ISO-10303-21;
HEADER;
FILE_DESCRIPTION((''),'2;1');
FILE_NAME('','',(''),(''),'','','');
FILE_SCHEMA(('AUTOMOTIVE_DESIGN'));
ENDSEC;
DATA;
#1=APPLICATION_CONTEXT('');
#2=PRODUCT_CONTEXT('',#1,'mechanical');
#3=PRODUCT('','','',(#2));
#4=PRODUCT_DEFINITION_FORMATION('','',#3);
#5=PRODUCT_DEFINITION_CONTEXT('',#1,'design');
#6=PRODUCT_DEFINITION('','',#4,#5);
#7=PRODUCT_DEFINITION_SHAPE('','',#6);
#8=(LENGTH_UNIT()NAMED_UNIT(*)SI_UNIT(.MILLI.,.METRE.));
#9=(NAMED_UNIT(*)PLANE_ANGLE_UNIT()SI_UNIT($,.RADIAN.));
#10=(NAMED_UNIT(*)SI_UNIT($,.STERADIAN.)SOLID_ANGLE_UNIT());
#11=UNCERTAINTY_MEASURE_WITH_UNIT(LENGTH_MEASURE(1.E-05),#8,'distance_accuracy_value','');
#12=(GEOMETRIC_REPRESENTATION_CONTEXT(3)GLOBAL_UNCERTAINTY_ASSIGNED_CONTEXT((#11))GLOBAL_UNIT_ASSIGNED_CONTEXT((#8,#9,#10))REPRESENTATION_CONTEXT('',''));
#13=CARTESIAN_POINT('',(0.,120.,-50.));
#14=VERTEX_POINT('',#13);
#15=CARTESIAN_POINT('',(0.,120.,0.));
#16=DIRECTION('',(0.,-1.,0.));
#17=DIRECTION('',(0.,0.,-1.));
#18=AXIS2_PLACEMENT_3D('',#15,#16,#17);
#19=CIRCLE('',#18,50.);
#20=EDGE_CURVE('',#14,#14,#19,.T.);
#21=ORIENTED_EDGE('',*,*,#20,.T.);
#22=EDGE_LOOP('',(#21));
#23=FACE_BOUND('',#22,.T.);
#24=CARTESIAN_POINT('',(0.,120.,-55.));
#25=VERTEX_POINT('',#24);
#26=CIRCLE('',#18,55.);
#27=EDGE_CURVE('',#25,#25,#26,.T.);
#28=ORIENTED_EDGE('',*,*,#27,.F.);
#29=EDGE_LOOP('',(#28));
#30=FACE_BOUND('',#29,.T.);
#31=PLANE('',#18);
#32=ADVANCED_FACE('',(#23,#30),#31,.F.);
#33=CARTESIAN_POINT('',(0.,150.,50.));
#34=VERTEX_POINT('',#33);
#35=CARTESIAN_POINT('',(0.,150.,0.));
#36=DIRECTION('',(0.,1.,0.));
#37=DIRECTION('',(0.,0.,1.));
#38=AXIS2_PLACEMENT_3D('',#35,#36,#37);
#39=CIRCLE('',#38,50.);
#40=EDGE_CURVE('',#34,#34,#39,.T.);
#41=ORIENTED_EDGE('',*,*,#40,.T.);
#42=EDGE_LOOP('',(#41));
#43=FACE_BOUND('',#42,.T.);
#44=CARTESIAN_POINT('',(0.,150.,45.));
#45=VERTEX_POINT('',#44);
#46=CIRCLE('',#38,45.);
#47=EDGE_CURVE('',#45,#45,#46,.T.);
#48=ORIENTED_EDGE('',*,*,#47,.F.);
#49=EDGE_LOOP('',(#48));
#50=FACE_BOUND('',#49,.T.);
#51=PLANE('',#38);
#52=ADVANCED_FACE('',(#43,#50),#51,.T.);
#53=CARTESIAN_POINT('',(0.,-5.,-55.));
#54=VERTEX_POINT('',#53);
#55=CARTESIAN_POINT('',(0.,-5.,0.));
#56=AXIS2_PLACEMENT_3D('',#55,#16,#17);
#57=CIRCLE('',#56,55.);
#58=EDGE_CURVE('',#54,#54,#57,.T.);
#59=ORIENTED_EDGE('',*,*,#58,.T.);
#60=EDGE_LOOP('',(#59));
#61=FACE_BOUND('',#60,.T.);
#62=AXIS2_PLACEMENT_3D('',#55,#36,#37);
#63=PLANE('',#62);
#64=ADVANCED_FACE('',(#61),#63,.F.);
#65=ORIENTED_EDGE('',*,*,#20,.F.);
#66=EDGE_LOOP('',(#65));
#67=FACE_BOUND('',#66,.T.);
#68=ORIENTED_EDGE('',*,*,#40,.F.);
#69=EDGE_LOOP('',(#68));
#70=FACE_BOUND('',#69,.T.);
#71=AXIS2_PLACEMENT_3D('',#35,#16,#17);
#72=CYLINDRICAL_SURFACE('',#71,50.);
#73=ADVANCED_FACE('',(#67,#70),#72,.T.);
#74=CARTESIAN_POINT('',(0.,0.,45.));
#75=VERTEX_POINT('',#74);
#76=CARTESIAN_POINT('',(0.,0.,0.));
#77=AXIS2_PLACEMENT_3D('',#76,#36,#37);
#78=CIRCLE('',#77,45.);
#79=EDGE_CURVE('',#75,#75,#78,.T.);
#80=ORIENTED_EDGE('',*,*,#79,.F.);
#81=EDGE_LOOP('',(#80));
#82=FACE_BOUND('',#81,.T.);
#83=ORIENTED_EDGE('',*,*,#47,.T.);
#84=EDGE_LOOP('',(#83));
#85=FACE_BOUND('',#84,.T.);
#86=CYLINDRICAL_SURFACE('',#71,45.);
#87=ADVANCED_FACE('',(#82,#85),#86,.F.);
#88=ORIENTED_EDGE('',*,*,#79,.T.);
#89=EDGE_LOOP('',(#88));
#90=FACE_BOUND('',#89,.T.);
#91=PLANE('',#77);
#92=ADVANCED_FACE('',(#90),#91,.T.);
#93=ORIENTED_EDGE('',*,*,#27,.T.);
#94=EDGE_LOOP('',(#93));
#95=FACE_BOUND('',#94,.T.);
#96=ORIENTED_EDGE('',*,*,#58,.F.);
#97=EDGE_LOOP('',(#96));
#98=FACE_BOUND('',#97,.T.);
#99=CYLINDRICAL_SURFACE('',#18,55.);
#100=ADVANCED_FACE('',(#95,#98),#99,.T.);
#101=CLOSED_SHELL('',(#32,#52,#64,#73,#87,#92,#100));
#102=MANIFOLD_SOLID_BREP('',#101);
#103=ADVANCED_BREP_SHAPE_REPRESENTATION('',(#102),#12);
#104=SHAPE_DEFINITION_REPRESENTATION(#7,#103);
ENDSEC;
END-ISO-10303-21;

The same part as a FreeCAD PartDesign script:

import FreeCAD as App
import Part
import Sketcher
from FreeCAD import Vector


def faces_at(feature, points):
    """Names of the faces that lie closest to the given points."""
    faces = feature.Shape.Faces
    near = lambda p: min(range(len(faces)), key=lambda i: faces[i].distToShape(Part.Vertex(*p))[0])
    return sorted({f"Face{near(p) + 1}" for p in points})

doc = App.newDocument("Part")
params = doc.addObject("Spreadsheet::Sheet", "Params")
for row, (alias, value) in enumerate([
    ("sketch1_diameter", "90 mm"),
    ("pad1_length", "150 mm"),
    ("thickness_wall", "5 mm"),
    ("sketch2_diameter", "110 mm"),
    ("sketch2_diameter2", "100 mm"),
    ("pad2_length", "125 mm"),
], start=1):
    params.set(f"A{row}", alias)
    params.set(f"B{row}", "=" + value)
    params.setAlias(f"B{row}", alias)

body = doc.addObject("PartDesign::Body", "Body")

sketch1 = body.newObject("Sketcher::SketchObject", "Sketch")
sketch1.AttachmentSupport = (doc.getObject("XZ_Plane"), [""])
sketch1.MapMode = "FlatFace"
sketch1.addGeometry(Part.Circle(Vector(0, 0, 0), Vector(0, 0, 1), 45), False)
sketch1.addConstraint(Sketcher.Constraint("Coincident", 0, 3, -1, 1))
sketch1.addConstraint(Sketcher.Constraint("Diameter", 0, 90.0))
sketch1.setExpression("Constraints[1]", "Params.sketch1_diameter")
pad1 = body.newObject("PartDesign::Pad", "Pad")
pad1.Profile = sketch1
pad1.setExpression("Length", "Params.pad1_length")
pad1.Reversed = True
doc.recompute()

thickness = body.newObject("PartDesign::Thickness", "Thickness")
thickness.Base = (pad1, faces_at(pad1, [(0, 150, 0)]))
thickness.setExpression("Value", "Params.thickness_wall")
thickness.Reversed = False
thickness.Join = "Intersection"

sketch2 = body.newObject("Sketcher::SketchObject", "Sketch001")
sketch2.AttachmentSupport = (doc.getObject("XZ_Plane"), [""])
sketch2.MapMode = "FlatFace"
sketch2.AttachmentOffset = App.Placement(Vector(0, 0, 5), App.Rotation())
sketch2.addGeometry(Part.Circle(Vector(0, 0, 0), Vector(0, 0, 1), 55), False)
sketch2.addGeometry(Part.Circle(Vector(0, 0, 0), Vector(0, 0, 1), 50), False)
sketch2.addConstraint(Sketcher.Constraint("Coincident", 0, 3, -1, 1))
sketch2.addConstraint(Sketcher.Constraint("Coincident", 1, 3, -1, 1))
sketch2.addConstraint(Sketcher.Constraint("Diameter", 0, 110.0))
sketch2.addConstraint(Sketcher.Constraint("Diameter", 1, 100.0))
sketch2.setExpression("Constraints[2]", "Params.sketch2_diameter")
sketch2.setExpression("Constraints[3]", "Params.sketch2_diameter2")
pad2 = body.newObject("PartDesign::Pad", "Pad001")
pad2.Profile = sketch2
pad2.setExpression("Length", "Params.pad2_length")
pad2.Reversed = True

doc.recompute()
